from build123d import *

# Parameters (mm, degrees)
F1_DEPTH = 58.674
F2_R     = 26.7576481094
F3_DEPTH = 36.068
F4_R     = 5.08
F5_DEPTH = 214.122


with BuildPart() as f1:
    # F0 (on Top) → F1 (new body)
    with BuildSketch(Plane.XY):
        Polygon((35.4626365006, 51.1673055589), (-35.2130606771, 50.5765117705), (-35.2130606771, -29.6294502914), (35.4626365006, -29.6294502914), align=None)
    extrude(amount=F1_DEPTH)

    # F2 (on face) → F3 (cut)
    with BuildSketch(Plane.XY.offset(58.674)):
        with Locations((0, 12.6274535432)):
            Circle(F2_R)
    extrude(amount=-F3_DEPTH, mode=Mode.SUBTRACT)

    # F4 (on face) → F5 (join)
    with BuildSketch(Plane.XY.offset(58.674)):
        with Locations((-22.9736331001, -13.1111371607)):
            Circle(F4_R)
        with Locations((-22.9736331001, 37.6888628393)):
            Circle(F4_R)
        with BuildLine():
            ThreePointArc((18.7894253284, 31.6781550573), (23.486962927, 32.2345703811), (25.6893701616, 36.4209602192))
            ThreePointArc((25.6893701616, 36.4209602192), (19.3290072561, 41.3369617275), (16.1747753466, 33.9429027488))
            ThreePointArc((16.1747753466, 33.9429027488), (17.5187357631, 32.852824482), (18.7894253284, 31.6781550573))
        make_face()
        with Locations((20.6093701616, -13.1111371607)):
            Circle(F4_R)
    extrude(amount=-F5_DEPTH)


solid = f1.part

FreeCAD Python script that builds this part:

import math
import FreeCAD as App
import Part
import Sketcher
Q = App.Units.Quantity

doc = App.newDocument("Part")
body = doc.addObject("PartDesign::Body", "Body")

# Sketch on XY plane
sketch1 = body.newObject("Sketcher::SketchObject", "Sketch")
sketch1.AttachmentSupport = (doc.getObject("XY_Plane"), [""])
sketch1.MapMode = "FlatFace"
sketch1.addGeometry([
    Part.LineSegment(App.Vector(35, 51, 0), App.Vector(-35, 51, 0)),
    Part.LineSegment(App.Vector(-35, 51, 0), App.Vector(-35, -30, 0)),
    Part.LineSegment(App.Vector(-35, -30, 0), App.Vector(35, -30, 0)),
    Part.LineSegment(App.Vector(35, -30, 0), App.Vector(35, 51, 0)),
], False)
sketch1.addConstraint([
    Sketcher.Constraint("Coincident", 0, 2, 1, 1),
    Sketcher.Constraint("Coincident", 1, 2, 2, 1),
    Sketcher.Constraint("Coincident", 2, 2, 3, 1),
    Sketcher.Constraint("Coincident", 3, 2, 0, 1),
    Sketcher.Constraint("Vertical", 1),
    Sketcher.Constraint("Horizontal", 2),
    Sketcher.Constraint("Vertical", 3),
    Sketcher.Constraint("DistanceX", 2, 1, 2, 2, 70.675697),
    Sketcher.Constraint("DistanceY", 1, 2, 1, 1, 80.205962),
    Sketcher.Constraint("DistanceY", 3, 1, 3, 2, 80.796756),
    Sketcher.Constraint("DistanceX", 0, 2, -1, 1, 35.213061),
    Sketcher.Constraint("DistanceY", -1, 1, 0, 2, 50.576512),
])
pad1 = body.newObject("PartDesign::Pad", "Pad")
pad1.Profile = sketch1
pad1.Length = Q("2.31 in")

# Sketch on XY plane
sketch2 = body.newObject("Sketcher::SketchObject", "Sketch001")
sketch2.AttachmentSupport = (doc.getObject("XY_Plane"), [""])
sketch2.MapMode = "FlatFace"
sketch2.AttachmentOffset = App.Placement(App.Vector(0, 0, 2.31 * 25.4), App.Rotation())
sketch2.addGeometry(Part.Circle(App.Vector(0, 13, 0), App.Vector(0, 0, 1), 27), False)
sketch2.addConstraint([
    Sketcher.Constraint("PointOnObject", 0, 3, -2),
    Sketcher.Constraint("Diameter", 0, 53.515296),
    Sketcher.Constraint("DistanceY", -1, 1, 0, 3, 12.627454),
])
pocket1 = body.newObject("PartDesign::Pocket", "Pocket")
pocket1.Profile = sketch2
pocket1.Length = Q("1.42 in")

# Sketch on XY plane
sketch3 = body.newObject("Sketcher::SketchObject", "Sketch002")
sketch3.AttachmentSupport = (doc.getObject("XY_Plane"), [""])
sketch3.MapMode = "FlatFace"
sketch3.AttachmentOffset = App.Placement(App.Vector(0, 0, 2.31 * 25.4), App.Rotation())
sketch3.addGeometry([
    Part.Circle(App.Vector(-23, -13.1, 0), App.Vector(0, 0, 1), 5.1),  # 0
    Part.Circle(App.Vector(-23, 37.7, 0), App.Vector(0, 0, 1), 5.1),  # 1
    Part.ArcOfCircle(Part.Circle(App.Vector(20.6, 36.4, 0), App.Vector(0, 0, 1), 5.1), math.radians(-111), math.radians(0)),  # 2
    Part.ArcOfCircle(Part.Circle(App.Vector(20.6, 36.4, 0), App.Vector(0, 0, 1), 5.1), math.radians(0), math.radians(209)),  # 3
    Part.ArcOfCircle(Part.Circle(App.Vector(0, 12.6, 0), App.Vector(0, 0, 1), 26.8), math.radians(45.4), math.radians(52.81)),  # 4
    Part.Circle(App.Vector(20.6, -13.1, 0), App.Vector(0, 0, 1), 5.1),  # 5
], False)
sketch3.addConstraint([
    Sketcher.Constraint("Tangent", 2, 2, 3, 1),
    Sketcher.Constraint("Coincident", 3, 2, 4, 2),
    Sketcher.Constraint("Coincident", 4, 1, 2, 1),
    Sketcher.Constraint("Equal", 0, 1),
    Sketcher.Constraint("Equal", 1, 2),
    Sketcher.Constraint("Equal", 2, 3),
    Sketcher.Constraint("Equal", 3, 5),
    Sketcher.Constraint("PointOnObject", 4, 3, -2),
    Sketcher.Constraint("Horizontal", 0, 3, 5, 3),
    Sketcher.Constraint("Horizontal", 3, 3, 2, 2),
    Sketcher.Constraint("Vertical", 0, 3, 1, 3),
    Sketcher.Constraint("Vertical", 3, 3, 5, 3),
    Sketcher.Constraint("Diameter", 0, Q("0.4 in")),
    Sketcher.Constraint("DistanceY", 0, 3, 1, 3, Q("2 in")),
    Sketcher.Constraint("Radius", 4, 26.757648),
    Sketcher.Constraint("DistanceY", 4, 3, 4, 1, 19.050702),
    Sketcher.Constraint("DistanceX", -1, 1, 2, 3, 20.60937),
    Sketcher.Constraint("DistanceY", -1, 1, 2, 3, 36.42096),
    Sketcher.Constraint("DistanceY", 4, 3, 1, 3, 25.061409),
    Sketcher.Constraint("DistanceX", 1, 3, 3, 2, 39.148408),
])
pad2 = body.newObject("PartDesign::Pad", "Pad001")
pad2.Profile = sketch3
pad2.Length = Q("8.43 in")
pad2.Reversed = True

doc.recompute()
